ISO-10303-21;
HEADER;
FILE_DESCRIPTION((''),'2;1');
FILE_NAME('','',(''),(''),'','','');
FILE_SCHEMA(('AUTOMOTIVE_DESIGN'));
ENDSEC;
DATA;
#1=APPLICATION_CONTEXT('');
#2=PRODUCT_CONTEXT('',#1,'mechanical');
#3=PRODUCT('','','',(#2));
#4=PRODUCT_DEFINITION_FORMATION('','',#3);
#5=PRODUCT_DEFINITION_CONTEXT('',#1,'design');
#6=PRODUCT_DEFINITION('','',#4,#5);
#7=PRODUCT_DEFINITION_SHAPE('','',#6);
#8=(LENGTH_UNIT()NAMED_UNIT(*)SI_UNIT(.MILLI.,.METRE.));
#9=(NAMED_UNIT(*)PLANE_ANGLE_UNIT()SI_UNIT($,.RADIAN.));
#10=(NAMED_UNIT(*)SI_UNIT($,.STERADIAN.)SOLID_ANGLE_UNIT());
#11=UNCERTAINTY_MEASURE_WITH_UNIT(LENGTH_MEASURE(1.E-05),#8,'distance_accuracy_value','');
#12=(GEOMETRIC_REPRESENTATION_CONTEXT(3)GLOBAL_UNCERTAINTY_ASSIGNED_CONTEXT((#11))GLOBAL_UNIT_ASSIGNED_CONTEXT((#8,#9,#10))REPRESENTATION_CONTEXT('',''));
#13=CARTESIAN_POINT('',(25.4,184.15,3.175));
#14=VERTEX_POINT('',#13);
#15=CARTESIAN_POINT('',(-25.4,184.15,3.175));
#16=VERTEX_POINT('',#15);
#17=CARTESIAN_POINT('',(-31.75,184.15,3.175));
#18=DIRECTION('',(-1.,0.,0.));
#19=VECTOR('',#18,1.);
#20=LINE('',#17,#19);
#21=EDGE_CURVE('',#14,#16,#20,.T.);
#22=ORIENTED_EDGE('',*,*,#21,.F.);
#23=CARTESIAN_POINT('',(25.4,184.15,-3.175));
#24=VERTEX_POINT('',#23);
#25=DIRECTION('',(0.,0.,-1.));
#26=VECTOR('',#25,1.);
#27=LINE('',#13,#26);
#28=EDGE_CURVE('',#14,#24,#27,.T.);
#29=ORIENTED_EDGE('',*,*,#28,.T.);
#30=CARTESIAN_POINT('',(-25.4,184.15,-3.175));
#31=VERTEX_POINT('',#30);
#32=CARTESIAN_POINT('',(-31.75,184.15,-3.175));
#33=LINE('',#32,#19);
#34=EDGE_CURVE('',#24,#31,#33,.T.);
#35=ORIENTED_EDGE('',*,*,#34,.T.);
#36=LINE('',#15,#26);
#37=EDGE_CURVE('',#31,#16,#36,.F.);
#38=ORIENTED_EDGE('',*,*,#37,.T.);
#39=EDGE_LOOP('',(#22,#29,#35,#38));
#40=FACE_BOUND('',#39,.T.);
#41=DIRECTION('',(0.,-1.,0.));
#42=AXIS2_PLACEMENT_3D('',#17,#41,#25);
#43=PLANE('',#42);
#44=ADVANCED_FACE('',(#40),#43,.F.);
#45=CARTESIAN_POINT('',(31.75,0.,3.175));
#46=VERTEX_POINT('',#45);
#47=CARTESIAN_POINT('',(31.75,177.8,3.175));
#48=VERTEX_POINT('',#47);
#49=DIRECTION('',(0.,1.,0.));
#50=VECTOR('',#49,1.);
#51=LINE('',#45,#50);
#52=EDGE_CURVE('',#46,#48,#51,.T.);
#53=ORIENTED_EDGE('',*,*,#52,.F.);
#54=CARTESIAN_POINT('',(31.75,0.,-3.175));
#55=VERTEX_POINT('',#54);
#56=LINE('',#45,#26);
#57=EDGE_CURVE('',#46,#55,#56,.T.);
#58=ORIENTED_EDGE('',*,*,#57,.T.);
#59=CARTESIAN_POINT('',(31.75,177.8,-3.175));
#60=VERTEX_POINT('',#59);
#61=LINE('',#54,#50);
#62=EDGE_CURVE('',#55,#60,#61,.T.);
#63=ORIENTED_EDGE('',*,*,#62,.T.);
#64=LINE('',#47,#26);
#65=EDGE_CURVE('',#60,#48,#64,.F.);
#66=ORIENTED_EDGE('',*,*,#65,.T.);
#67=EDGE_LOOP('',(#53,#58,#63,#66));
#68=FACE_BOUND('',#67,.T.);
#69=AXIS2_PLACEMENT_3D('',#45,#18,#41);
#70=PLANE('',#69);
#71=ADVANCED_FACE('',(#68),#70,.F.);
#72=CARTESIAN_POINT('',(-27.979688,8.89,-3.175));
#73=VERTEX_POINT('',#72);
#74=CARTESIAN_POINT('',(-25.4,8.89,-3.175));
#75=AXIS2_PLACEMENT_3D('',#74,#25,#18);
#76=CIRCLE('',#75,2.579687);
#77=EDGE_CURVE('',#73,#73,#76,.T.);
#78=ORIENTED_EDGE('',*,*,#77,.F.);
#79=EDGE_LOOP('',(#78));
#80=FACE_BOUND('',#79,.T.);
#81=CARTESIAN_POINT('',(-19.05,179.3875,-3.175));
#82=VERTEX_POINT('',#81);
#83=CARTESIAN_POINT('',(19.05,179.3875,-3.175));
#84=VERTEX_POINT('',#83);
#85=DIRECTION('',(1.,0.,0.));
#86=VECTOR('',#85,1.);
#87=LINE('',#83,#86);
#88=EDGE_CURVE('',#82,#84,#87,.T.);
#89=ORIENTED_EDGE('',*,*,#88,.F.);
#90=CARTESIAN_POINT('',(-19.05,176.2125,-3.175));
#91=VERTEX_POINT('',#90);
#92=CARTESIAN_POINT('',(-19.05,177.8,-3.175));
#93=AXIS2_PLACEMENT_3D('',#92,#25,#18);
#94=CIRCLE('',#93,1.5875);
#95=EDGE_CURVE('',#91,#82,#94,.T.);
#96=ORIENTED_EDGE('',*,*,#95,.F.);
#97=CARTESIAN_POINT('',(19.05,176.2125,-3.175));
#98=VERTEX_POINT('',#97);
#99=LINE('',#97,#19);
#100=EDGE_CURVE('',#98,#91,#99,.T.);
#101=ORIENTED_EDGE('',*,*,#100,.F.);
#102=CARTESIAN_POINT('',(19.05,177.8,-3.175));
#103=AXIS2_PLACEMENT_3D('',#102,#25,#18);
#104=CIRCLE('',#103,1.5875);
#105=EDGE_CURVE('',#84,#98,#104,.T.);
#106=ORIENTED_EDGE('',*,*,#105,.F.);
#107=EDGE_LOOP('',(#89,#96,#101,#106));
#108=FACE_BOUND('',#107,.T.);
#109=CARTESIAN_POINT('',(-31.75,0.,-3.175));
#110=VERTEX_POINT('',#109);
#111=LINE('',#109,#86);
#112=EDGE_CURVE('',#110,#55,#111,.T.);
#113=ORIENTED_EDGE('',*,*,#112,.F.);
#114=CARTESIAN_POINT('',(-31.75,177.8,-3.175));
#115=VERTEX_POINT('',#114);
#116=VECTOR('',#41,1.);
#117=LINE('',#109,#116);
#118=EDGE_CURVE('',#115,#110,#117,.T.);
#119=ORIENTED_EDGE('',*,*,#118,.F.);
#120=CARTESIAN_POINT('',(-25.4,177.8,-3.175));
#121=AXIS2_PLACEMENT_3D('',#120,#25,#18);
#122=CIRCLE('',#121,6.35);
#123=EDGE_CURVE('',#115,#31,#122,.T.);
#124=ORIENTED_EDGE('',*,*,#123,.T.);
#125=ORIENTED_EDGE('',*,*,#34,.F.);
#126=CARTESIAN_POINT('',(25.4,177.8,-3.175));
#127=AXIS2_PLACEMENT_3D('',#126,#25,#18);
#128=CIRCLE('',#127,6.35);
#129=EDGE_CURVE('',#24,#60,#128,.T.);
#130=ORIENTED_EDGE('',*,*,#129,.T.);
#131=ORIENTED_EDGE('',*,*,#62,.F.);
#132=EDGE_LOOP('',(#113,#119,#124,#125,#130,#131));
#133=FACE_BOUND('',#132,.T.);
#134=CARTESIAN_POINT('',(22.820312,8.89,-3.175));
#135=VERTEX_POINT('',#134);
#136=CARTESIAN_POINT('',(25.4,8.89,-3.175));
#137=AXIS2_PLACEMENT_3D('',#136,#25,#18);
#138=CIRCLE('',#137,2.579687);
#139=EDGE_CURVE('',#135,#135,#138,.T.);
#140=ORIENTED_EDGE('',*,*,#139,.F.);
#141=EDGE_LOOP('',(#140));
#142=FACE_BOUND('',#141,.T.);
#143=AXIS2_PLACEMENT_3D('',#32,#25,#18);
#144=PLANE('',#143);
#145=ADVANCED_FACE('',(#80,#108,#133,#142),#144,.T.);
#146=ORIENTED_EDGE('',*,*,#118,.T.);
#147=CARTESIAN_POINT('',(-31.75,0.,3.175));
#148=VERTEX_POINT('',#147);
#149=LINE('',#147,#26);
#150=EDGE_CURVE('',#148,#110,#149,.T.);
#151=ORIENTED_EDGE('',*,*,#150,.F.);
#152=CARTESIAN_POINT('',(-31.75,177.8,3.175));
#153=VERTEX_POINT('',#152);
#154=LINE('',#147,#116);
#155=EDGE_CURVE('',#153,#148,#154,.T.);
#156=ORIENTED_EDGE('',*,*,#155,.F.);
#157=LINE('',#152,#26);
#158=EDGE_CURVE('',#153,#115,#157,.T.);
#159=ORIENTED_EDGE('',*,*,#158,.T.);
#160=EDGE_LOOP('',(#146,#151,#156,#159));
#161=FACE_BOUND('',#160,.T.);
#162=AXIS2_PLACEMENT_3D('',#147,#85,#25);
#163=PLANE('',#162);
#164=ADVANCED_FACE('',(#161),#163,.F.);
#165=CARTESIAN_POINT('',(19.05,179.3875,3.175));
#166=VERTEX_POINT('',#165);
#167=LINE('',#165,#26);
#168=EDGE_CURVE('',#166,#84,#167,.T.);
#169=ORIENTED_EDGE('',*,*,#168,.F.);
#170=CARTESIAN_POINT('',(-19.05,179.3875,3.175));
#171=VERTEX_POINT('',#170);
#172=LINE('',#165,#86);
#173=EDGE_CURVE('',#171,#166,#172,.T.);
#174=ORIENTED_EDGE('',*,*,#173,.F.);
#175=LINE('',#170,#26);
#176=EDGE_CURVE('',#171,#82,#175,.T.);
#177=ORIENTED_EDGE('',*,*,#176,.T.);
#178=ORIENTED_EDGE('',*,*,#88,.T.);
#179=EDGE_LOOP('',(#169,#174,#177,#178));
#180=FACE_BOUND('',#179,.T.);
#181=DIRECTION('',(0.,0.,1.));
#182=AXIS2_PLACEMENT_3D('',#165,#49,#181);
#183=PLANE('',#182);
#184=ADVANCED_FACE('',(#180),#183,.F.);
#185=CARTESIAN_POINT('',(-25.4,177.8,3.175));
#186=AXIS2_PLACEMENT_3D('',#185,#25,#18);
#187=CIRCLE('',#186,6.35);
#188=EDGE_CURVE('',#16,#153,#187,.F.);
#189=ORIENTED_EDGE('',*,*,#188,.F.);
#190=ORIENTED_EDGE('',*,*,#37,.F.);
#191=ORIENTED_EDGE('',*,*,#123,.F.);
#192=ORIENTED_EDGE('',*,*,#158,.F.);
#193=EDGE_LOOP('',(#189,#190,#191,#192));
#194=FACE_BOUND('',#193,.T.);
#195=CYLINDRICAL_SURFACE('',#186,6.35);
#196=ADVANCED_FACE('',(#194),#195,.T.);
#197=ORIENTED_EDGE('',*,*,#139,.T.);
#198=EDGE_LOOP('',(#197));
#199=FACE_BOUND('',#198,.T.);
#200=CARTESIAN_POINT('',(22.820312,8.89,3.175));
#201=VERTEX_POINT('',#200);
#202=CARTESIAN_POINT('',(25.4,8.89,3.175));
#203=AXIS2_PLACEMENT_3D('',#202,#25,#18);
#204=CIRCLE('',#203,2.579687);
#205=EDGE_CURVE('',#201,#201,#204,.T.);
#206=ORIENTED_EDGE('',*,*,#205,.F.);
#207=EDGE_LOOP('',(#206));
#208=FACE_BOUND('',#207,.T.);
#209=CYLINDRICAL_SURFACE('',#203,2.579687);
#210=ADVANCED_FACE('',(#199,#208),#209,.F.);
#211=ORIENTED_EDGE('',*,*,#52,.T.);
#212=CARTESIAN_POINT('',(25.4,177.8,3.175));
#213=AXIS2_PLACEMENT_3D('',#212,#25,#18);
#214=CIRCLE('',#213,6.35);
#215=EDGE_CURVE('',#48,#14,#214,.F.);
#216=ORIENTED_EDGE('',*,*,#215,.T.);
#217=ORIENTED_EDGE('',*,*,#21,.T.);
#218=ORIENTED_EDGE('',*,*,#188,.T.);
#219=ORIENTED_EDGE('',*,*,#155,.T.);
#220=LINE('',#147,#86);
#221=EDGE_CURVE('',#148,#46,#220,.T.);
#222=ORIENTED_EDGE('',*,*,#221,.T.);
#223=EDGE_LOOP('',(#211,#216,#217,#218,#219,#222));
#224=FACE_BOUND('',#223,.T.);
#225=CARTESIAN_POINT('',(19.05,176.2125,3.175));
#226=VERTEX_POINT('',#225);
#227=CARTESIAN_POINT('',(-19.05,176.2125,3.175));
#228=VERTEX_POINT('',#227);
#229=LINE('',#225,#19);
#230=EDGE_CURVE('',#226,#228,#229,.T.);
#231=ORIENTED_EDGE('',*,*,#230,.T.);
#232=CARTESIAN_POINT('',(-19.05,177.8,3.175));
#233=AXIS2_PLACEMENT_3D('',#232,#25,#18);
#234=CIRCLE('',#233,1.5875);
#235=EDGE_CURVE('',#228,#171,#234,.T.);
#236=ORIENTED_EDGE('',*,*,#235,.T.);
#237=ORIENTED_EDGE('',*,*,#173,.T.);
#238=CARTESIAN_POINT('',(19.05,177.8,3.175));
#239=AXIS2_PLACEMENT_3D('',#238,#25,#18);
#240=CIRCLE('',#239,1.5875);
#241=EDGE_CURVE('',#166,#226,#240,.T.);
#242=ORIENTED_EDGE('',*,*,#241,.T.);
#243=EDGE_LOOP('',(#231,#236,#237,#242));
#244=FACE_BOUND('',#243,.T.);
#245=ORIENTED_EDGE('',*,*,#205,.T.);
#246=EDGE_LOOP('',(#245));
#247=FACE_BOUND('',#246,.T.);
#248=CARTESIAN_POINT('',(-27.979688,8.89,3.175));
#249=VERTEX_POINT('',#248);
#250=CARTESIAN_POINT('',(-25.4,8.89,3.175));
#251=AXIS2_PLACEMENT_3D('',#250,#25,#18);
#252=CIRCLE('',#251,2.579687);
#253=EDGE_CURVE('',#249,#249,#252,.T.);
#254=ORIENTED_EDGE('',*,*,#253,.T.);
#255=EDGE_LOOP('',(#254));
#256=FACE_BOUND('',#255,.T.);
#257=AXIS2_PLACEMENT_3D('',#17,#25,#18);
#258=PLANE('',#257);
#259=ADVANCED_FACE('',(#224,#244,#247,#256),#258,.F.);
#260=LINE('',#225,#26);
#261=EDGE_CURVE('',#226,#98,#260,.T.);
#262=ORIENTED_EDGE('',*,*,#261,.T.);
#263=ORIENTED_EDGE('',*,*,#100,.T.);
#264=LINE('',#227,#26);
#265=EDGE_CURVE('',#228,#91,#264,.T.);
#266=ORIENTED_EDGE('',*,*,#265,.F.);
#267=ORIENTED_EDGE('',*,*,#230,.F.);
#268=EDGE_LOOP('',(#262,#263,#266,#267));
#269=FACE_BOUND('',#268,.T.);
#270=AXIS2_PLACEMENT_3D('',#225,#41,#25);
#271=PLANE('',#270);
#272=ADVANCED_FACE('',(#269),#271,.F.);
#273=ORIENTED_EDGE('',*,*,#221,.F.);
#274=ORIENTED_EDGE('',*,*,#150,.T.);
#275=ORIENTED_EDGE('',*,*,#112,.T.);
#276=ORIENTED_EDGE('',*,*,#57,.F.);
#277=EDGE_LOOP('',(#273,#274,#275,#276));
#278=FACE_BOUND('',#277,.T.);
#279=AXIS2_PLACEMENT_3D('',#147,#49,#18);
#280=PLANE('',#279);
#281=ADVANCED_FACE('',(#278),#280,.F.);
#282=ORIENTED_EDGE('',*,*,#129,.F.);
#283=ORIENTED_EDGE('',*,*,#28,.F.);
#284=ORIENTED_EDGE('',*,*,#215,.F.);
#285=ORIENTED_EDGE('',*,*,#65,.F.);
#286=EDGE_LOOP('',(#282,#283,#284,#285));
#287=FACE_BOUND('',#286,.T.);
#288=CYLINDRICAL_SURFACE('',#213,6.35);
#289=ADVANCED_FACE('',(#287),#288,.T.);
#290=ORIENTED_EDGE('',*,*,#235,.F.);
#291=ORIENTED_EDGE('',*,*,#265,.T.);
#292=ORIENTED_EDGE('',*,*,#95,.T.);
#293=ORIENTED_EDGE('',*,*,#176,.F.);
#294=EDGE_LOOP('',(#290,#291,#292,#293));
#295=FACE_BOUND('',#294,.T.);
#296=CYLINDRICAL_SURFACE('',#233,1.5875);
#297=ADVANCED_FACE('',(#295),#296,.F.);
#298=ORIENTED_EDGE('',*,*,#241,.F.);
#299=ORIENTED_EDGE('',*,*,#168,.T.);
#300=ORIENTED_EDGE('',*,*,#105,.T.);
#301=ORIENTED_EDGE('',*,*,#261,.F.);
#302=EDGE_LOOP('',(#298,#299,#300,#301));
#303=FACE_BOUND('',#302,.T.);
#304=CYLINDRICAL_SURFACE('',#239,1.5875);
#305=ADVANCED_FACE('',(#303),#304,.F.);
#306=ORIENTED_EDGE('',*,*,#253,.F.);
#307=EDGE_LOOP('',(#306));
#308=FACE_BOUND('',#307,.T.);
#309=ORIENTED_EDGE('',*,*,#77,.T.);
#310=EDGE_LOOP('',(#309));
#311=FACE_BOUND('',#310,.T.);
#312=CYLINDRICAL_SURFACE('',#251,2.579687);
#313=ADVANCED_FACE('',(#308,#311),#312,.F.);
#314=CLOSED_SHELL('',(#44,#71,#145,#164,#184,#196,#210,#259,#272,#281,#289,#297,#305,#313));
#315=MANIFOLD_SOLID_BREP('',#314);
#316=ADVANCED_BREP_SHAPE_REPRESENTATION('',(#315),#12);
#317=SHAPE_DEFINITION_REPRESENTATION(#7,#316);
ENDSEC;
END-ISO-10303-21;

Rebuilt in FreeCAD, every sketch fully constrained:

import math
import FreeCAD as App
import Part
import Sketcher

V = App.Vector
Q = App.Units.Quantity


def edges_at(feature, points):
    """Names of the edges that pass closest to the given points."""
    edges = feature.Shape.Edges
    near = lambda p: min(range(len(edges)), key=lambda i: edges[i].distToShape(Part.Vertex(*p))[0])
    return sorted({f"Edge{near(p) + 1}" for p in points})

doc = App.newDocument("Part")
params = doc.addObject("Spreadsheet::Sheet", "Params")
for row, (alias, value) in enumerate([
    ("sketch1_width", "2.5 in"),
    ("sketch1_height", "7.25 in"),
    ("pad1_length", "0.25 in"),
    ("sketch2_diameter", "0.203125 in"),
    ("sketch3_width", "1.5 in"),
    ("sketch3_radius", "0.0625 in"),
    ("fillet_radius", "0.25 in"),
], start=1):
    params.set(f"A{row}", alias)
    params.set(f"B{row}", "=" + value)
    params.setAlias(f"B{row}", alias)

body = doc.addObject("PartDesign::Body", "Body")

sketch1 = body.newObject("Sketcher::SketchObject", "Sketch")
sketch1.AttachmentSupport = (doc.getObject("XY_Plane"), [""])
sketch1.MapMode = "FlatFace"
sketch1.addGeometry(Part.LineSegment(V(-32, 184, 0), V(-32, 0, 0)), False)
sketch1.addGeometry(Part.LineSegment(V(-32, 0, 0), V(32, 0, 0)), False)
sketch1.addGeometry(Part.LineSegment(V(32, 0, 0), V(32, 184, 0)), False)
sketch1.addGeometry(Part.LineSegment(V(32, 184, 0), V(-32, 184, 0)), False)
sketch1.addConstraint(Sketcher.Constraint("Coincident", 0, 2, 1, 1))
sketch1.addConstraint(Sketcher.Constraint("Coincident", 1, 2, 2, 1))
sketch1.addConstraint(Sketcher.Constraint("Coincident", 2, 2, 3, 1))
sketch1.addConstraint(Sketcher.Constraint("Coincident", 3, 2, 0, 1))
sketch1.addConstraint(Sketcher.Constraint("Vertical", 0))
sketch1.addConstraint(Sketcher.Constraint("Horizontal", 1))
sketch1.addConstraint(Sketcher.Constraint("Vertical", 2))
sketch1.addConstraint(Sketcher.Constraint("Horizontal", 3))
sketch1.addConstraint(Sketcher.Constraint("Symmetric", 0, 2, 1, 2, -1, 1))
sketch1.addConstraint(Sketcher.Constraint("DistanceX", 1, 1, 1, 2, Q("2.5 in")))
sketch1.addConstraint(Sketcher.Constraint("DistanceY", 0, 2, 0, 1, Q("7.25 in")))
sketch1.setExpression("Constraints[9]", "Params.sketch1_width")
sketch1.setExpression("Constraints[10]", "Params.sketch1_height")
pad1 = body.newObject("PartDesign::Pad", "Pad")
pad1.Profile = sketch1
pad1.setExpression("Length", "Params.pad1_length")
pad1.Midplane = True

sketch2 = body.newObject("Sketcher::SketchObject", "Sketch001")
sketch2.AttachmentSupport = (doc.getObject("XY_Plane"), [""])
sketch2.MapMode = "FlatFace"
sketch2.AttachmentOffset = App.Placement(V(0, 0, -0.125 * 25.4), App.Rotation())
sketch2.addGeometry(Part.Circle(V(25.4, 8.9, 0), V(0, 0, 1), 2.6), False)
sketch2.addGeometry(Part.Circle(V(-25.4, 8.9, 0), V(0, 0, 1), 2.6), False)
sketch2.addConstraint(Sketcher.Constraint("Equal", 0, 1))
sketch2.addConstraint(Sketcher.Constraint("Symmetric", 0, 3, 1, 3, -2))
sketch2.addConstraint(Sketcher.Constraint("Diameter", 0, Q("0.203125 in")))
sketch2.addConstraint(Sketcher.Constraint("DistanceX", -1, 1, 0, 3, Q("1 in")))
sketch2.addConstraint(Sketcher.Constraint("DistanceY", -1, 1, 0, 3, Q("0.35 in")))
sketch2.setExpression("Constraints[2]", "Params.sketch2_diameter")
pocket1 = body.newObject("PartDesign::Pocket", "Pocket")
pocket1.Profile = sketch2
pocket1.Type = "ThroughAll"
pocket1.Reversed = True

sketch3 = body.newObject("Sketcher::SketchObject", "Sketch002")
sketch3.AttachmentSupport = (doc.getObject("XY_Plane"), [""])
sketch3.MapMode = "FlatFace"
sketch3.AttachmentOffset = App.Placement(V(0, 0, -0.125 * 25.4), App.Rotation())
sketch3.addGeometry(Part.LineSegment(V(-19.1, 179.4, 0), V(19.1, 179.4, 0)), False)
sketch3.addGeometry(Part.ArcOfCircle(Part.Circle(V(19.1, 177.8, 0), V(0, 0, 1), 1.6), math.radians(-90), math.radians(90)), False)
sketch3.addGeometry(Part.LineSegment(V(19.1, 176.2, 0), V(-19.1, 176.2, 0)), False)
sketch3.addGeometry(Part.ArcOfCircle(Part.Circle(V(-19.1, 177.8, 0), V(0, 0, 1), 1.6), math.radians(90), math.radians(270)), False)
sketch3.addConstraint(Sketcher.Constraint("Tangent", 0, 2, 1, 2))
sketch3.addConstraint(Sketcher.Constraint("Tangent", 1, 1, 2, 1))
sketch3.addConstraint(Sketcher.Constraint("Tangent", 2, 2, 3, 2))
sketch3.addConstraint(Sketcher.Constraint("Tangent", 3, 1, 0, 1))
sketch3.addConstraint(Sketcher.Constraint("Horizontal", 0))
sketch3.addConstraint(Sketcher.Constraint("Horizontal", 2))
sketch3.addConstraint(Sketcher.Constraint("DistanceX", 0, 1, 0, 2, Q("1.5 in")))
sketch3.addConstraint(Sketcher.Constraint("DistanceY", -1, 1, 1, 3, Q("7 in")))
sketch3.addConstraint(Sketcher.Constraint("Radius", 1, Q("0.0625 in")))
sketch3.addConstraint(Sketcher.Constraint("DistanceX", -1, 1, 1, 3, Q("0.75 in")))
sketch3.setExpression("Constraints[6]", "Params.sketch3_width")
sketch3.setExpression("Constraints[8]", "Params.sketch3_radius")
pocket2 = body.newObject("PartDesign::Pocket", "Pocket001")
pocket2.Profile = sketch3
pocket2.Type = "ThroughAll"
pocket2.Reversed = True
doc.recompute()

fillet = body.newObject("PartDesign::Fillet", "Fillet")
fillet.Base = (pocket2, edges_at(pocket2, [(-31.75, 184.15, 0), (31.75, 184.15, 0)]))
fillet.setExpression("Radius", "Params.fillet_radius")

doc.recompute()
